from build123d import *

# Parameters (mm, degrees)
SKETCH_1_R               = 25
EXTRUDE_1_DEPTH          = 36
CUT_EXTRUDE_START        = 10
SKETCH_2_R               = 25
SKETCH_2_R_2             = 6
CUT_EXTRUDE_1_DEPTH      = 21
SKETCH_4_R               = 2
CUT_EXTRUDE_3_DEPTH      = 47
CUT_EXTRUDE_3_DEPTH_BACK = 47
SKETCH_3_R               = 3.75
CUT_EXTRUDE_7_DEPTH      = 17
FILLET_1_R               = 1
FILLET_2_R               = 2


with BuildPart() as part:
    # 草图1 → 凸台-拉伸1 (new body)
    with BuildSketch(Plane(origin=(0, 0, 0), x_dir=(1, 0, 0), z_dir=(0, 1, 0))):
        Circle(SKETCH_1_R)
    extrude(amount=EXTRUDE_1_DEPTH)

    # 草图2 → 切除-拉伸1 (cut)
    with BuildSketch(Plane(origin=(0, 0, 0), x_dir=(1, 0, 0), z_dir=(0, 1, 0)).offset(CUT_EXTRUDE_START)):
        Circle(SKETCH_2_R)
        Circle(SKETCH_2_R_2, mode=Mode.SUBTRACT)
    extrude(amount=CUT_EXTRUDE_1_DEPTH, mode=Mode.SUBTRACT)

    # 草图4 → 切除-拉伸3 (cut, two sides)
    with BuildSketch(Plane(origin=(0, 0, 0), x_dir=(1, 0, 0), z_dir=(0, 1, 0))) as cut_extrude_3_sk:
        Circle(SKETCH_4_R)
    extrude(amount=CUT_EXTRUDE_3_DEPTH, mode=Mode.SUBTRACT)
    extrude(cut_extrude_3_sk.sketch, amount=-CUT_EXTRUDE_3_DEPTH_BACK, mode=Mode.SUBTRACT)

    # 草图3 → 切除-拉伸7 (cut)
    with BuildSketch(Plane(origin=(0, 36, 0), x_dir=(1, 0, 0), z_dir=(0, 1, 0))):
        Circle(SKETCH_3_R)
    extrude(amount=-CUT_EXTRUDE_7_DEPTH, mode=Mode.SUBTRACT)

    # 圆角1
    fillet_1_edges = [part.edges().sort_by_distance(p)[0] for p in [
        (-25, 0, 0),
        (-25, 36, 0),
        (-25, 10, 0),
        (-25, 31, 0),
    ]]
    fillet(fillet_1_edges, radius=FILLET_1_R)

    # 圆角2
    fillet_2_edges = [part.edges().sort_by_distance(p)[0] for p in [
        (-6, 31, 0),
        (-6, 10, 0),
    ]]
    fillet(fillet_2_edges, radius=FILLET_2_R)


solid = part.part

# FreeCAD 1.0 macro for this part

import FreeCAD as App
import Part
import Sketcher
from FreeCAD import Vector


def edges_at(feature, points):
    """Names of the edges that pass closest to the given points."""
    edges = feature.Shape.Edges
    near = lambda p: min(range(len(edges)), key=lambda i: edges[i].distToShape(Part.Vertex(*p))[0])
    return sorted({f"Edge{near(p) + 1}" for p in points})

doc = App.newDocument("Part")
body = doc.addObject("PartDesign::Body", "Body")

# Sketch on XZ plane
sketch1 = body.newObject("Sketcher::SketchObject", "Sketch")
sketch1.AttachmentSupport = (doc.getObject("XZ_Plane"), [""])
sketch1.MapMode = "FlatFace"
sketch1.addGeometry(Part.Circle(Vector(0, 0, 0), Vector(0, 0, 1), 25), False)
sketch1.addConstraint([
    Sketcher.Constraint("Coincident", 0, 3, -1, 1),
    Sketcher.Constraint("Diameter", 0, 50.0),
])
pad1 = body.newObject("PartDesign::Pad", "Pad")
pad1.Profile = sketch1
pad1.Length = 36
pad1.Reversed = True

# Sketch on XZ plane
sketch2 = body.newObject("Sketcher::SketchObject", "Sketch001")
sketch2.AttachmentSupport = (doc.getObject("XZ_Plane"), [""])
sketch2.MapMode = "FlatFace"
sketch2.AttachmentOffset = App.Placement(Vector(0, 0, -10), App.Rotation())
sketch2.addGeometry([
    Part.Circle(Vector(0, 0, 0), Vector(0, 0, 1), 25),
    Part.Circle(Vector(0, 0, 0), Vector(0, 0, 1), 6),
], False)
sketch2.addConstraint([
    Sketcher.Constraint("Coincident", 0, 3, -1, 1),
    Sketcher.Constraint("Coincident", 1, 3, -1, 1),
    Sketcher.Constraint("Diameter", 0, 50.0),
    Sketcher.Constraint("Diameter", 1, 12.0),
])
pocket1 = body.newObject("PartDesign::Pocket", "Pocket")
pocket1.Profile = sketch2
pocket1.Length = 21

# Sketch on XZ plane
sketch3 = body.newObject("Sketcher::SketchObject", "Sketch002")
sketch3.AttachmentSupport = (doc.getObject("XZ_Plane"), [""])
sketch3.MapMode = "FlatFace"
sketch3.addGeometry(Part.Circle(Vector(0, 0, 0), Vector(0, 0, 1), 2), False)
sketch3.addConstraint([
    Sketcher.Constraint("Coincident", 0, 3, -1, 1),
    Sketcher.Constraint("Diameter", 0, 4.0),
])
pocket2 = body.newObject("PartDesign::Pocket", "Pocket001")
pocket2.Profile = sketch3
pocket2.Type = "ThroughAll"
pocket2.Midplane = True

# Sketch on XZ plane
sketch4 = body.newObject("Sketcher::SketchObject", "Sketch003")
sketch4.AttachmentSupport = (doc.getObject("XZ_Plane"), [""])
sketch4.MapMode = "FlatFace"
sketch4.AttachmentOffset = App.Placement(Vector(0, 0, -36), App.Rotation())
sketch4.addGeometry(Part.Circle(Vector(0, 0, 0), Vector(0, 0, 1), 3.75), False)
sketch4.addConstraint([
    Sketcher.Constraint("Coincident", 0, 3, -1, 1),
    Sketcher.Constraint("Diameter", 0, 7.5),
])
pocket3 = body.newObject("PartDesign::Pocket", "Pocket002")
pocket3.Profile = sketch4
pocket3.Length = 17
pocket3.Reversed = True
doc.recompute()

fillet = body.newObject("PartDesign::Fillet", "Fillet")
fillet.Base = (pocket3, edges_at(pocket3, [
    (-25, 0, 0),
    (-25, 36, 0),
    (-25, 10, 0),
    (-25, 31, 0),
]))
fillet.Radius = 1
doc.recompute()

fillet2 = body.newObject("PartDesign::Fillet", "Fillet001")
fillet2.Base = (fillet, edges_at(fillet, [(-6, 31, 0), (-6, 10, 0)]))
fillet2.Radius = 2

doc.recompute()
